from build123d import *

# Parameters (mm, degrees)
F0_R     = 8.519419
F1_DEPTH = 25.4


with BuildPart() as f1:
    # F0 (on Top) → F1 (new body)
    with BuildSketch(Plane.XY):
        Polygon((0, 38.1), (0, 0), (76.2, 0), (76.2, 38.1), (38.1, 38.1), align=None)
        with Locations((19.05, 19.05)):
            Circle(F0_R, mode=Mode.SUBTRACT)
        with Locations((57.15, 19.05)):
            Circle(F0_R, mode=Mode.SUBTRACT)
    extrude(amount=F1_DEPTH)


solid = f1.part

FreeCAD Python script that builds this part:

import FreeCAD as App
import Part
import Sketcher
Q = App.Units.Quantity


def add_polygon(sketch, points):
    """Adds a closed chain of lines whose ends are joined by coincident constraints."""
    first, n = sketch.GeometryCount, len(points)
    for a, b in zip(points, points[1:] + points[:1]):
        sketch.addGeometry(Part.LineSegment(App.Vector(*a, 0), App.Vector(*b, 0)), False)
    for i in range(n):
        sketch.addConstraint(Sketcher.Constraint("Coincident", first + i, 2, first + (i + 1) % n, 1))

doc = App.newDocument("Part")
params = doc.addObject("Spreadsheet::Sheet", "Params")
for row, (alias, value) in enumerate([
    ("sketch1_width", "3 in"),
    ("sketch1_height", "1.5 in"),
    ("pad1_length", "1 in"),
], start=1):
    params.set(f"A{row}", alias)
    params.set(f"B{row}", "=" + value)
    params.setAlias(f"B{row}", alias)

body = doc.addObject("PartDesign::Body", "Body")

sketch1 = doc.addObject("Sketcher::SketchObject", "Sketch")
body.addObject(sketch1)
sketch1.AttachmentSupport = (doc.XY_Plane, [""])
sketch1.MapMode = "FlatFace"
add_polygon(sketch1, [(0, 38.1), (0, 0), (76.2, 0), (76.2, 38.1)])
sketch1.addGeometry(Part.Circle(App.Vector(19.05, 19.05, 0), App.Vector(0, 0, 1), 8.519419), False)
sketch1.addGeometry(Part.Circle(App.Vector(57.15, 19.05, 0), App.Vector(0, 0, 1), 8.519419), False)
sketch1.addConstraint(Sketcher.Constraint("Vertical", 0))
sketch1.addConstraint(Sketcher.Constraint("Horizontal", 1))
sketch1.addConstraint(Sketcher.Constraint("Vertical", 2))
sketch1.addConstraint(Sketcher.Constraint("Horizontal", 3))
sketch1.addConstraint(Sketcher.Constraint("Coincident", 0, 2, -1, 1))
sketch1.addConstraint(Sketcher.Constraint("Equal", 4, 5))
sketch1.addConstraint(Sketcher.Constraint("Horizontal", 4, 3, 5, 3))
sketch1.addConstraint(Sketcher.Constraint("DistanceX", 1, 1, 1, 2, Q("3 in")))
sketch1.addConstraint(Sketcher.Constraint("DistanceY", 0, 2, 0, 1, Q("1.5 in")))
sketch1.addConstraint(Sketcher.Constraint("DistanceX", 4, 3, 5, 3, Q("1.5 in")))
sketch1.addConstraint(Sketcher.Constraint("DistanceX", -1, 1, 4, 3, Q("0.75 in")))
sketch1.addConstraint(Sketcher.Constraint("DistanceY", -1, 1, 4, 3, Q("0.75 in")))
sketch1.addConstraint(Sketcher.Constraint("Diameter", 4, 17.038838))
sketch1.setExpression("Constraints[11]", "Params.sketch1_width")
sketch1.setExpression("Constraints[12]", "Params.sketch1_height")
pad1 = doc.addObject("PartDesign::Pad", "Pad")
body.addObject(pad1)
pad1.Profile = sketch1
pad1.setExpression("Length", "Params.pad1_length")

doc.recompute()
